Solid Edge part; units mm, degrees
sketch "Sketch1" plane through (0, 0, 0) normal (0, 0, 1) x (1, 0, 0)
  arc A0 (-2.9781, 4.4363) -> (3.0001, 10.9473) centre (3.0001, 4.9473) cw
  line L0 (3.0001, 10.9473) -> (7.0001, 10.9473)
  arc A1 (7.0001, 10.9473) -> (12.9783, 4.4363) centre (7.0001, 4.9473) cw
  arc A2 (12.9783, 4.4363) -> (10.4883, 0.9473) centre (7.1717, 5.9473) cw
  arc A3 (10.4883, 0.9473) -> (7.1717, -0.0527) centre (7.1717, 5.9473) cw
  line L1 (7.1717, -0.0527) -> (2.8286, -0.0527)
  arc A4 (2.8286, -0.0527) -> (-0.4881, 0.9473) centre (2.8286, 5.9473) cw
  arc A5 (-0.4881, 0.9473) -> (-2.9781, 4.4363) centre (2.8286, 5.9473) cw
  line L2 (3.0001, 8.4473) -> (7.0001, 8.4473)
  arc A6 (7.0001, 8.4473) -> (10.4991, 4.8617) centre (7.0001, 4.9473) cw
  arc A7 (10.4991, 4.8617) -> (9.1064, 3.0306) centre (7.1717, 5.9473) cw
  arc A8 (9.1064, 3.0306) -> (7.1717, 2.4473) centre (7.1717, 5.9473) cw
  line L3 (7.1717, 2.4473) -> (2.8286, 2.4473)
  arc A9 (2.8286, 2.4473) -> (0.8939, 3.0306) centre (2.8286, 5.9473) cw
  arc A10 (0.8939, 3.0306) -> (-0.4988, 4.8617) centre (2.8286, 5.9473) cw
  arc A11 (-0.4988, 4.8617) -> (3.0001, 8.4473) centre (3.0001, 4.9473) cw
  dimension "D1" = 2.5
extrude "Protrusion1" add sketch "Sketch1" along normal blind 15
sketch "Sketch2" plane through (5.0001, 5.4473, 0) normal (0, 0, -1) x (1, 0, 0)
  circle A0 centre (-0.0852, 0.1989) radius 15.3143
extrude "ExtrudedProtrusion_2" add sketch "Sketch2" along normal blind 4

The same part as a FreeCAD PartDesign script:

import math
import FreeCAD as App
import Part
import Sketcher

V = App.Vector

doc = App.newDocument("Part")
params = doc.addObject("Spreadsheet::Sheet", "Params")
for row, (alias, value) in enumerate([
    ("sketch1_radius", "6 mm"),
    ("sketch1_radius2", "3.5 mm"),
    ("sketch1_width", "4 mm"),
    ("pad1_length", "15 mm"),
    ("pad2_length", "4 mm"),
], start=1):
    params.set(f"A{row}", alias)
    params.set(f"B{row}", "=" + value)
    params.setAlias(f"B{row}", alias)

body = doc.addObject("PartDesign::Body", "Body")

sketch1 = doc.addObject("Sketcher::SketchObject", "Sketch")
body.addObject(sketch1)
sketch1.AttachmentSupport = (doc.XY_Plane, [""])
sketch1.MapMode = "FlatFace"
sketch1.addGeometry([
    Part.ArcOfCircle(Part.Circle(V(3, 4.9, 0), V(0, 0, 1), 6), math.radians(90), math.radians(185)),
    Part.ArcOfCircle(Part.Circle(V(2.8, 5.9, 0), V(0, 0, 1), 6), math.radians(-165), math.radians(-124)),
    Part.ArcOfCircle(Part.Circle(V(2.8, 5.9, 0), V(0, 0, 1), 6), math.radians(-124), math.radians(-90)),
    Part.LineSegment(V(2.8, -0.1, 0), V(7.2, -0.1, 0)),
    Part.ArcOfCircle(Part.Circle(V(7.2, 5.9, 0), V(0, 0, 1), 6), math.radians(-90), math.radians(-56)),
    Part.ArcOfCircle(Part.Circle(V(7.2, 5.9, 0), V(0, 0, 1), 6), math.radians(-56), math.radians(-15)),
    Part.ArcOfCircle(Part.Circle(V(7, 4.9, 0), V(0, 0, 1), 6), math.radians(-5), math.radians(90)),
    Part.LineSegment(V(7, 10.9, 0), V(3, 10.9, 0)),
    Part.ArcOfCircle(Part.Circle(V(3, 4.9, 0), V(0, 0, 1), 3.5), math.radians(90), math.radians(181)),
    Part.LineSegment(V(3, 8.4, 0), V(7, 8.4, 0)),
    Part.ArcOfCircle(Part.Circle(V(7, 4.9, 0), V(0, 0, 1), 3.5), math.radians(-1), math.radians(90)),
    Part.ArcOfCircle(Part.Circle(V(7.2, 5.9, 0), V(0, 0, 1), 3.5), math.radians(-56), math.radians(-18)),
    Part.ArcOfCircle(Part.Circle(V(7.2, 5.9, 0), V(0, 0, 1), 3.5), math.radians(-90), math.radians(-56)),
    Part.LineSegment(V(7.2, 2.4, 0), V(2.8, 2.4, 0)),
    Part.ArcOfCircle(Part.Circle(V(2.8, 5.9, 0), V(0, 0, 1), 3.5), math.radians(-124), math.radians(-90)),
    Part.ArcOfCircle(Part.Circle(V(2.8, 5.9, 0), V(0, 0, 1), 3.5), math.radians(-162), math.radians(-124)),
], False)
sketch1.addConstraint([
    Sketcher.Constraint("Coincident", 0, 2, 1, 1),
    Sketcher.Constraint("Tangent", 1, 2, 2, 1),
    Sketcher.Constraint("Tangent", 2, 2, 3, 1),
    Sketcher.Constraint("Tangent", 3, 2, 4, 1),
    Sketcher.Constraint("Tangent", 4, 2, 5, 1),
    Sketcher.Constraint("Coincident", 5, 2, 6, 1),
    Sketcher.Constraint("Tangent", 6, 2, 7, 1),
    Sketcher.Constraint("Tangent", 7, 2, 0, 1),
    Sketcher.Constraint("Tangent", 8, 1, 9, 1),
    Sketcher.Constraint("Tangent", 9, 2, 10, 2),
    Sketcher.Constraint("Coincident", 10, 1, 11, 2),
    Sketcher.Constraint("Tangent", 11, 1, 12, 2),
    Sketcher.Constraint("Tangent", 12, 1, 13, 1),
    Sketcher.Constraint("Tangent", 13, 2, 14, 2),
    Sketcher.Constraint("Tangent", 14, 1, 15, 2),
    Sketcher.Constraint("Coincident", 15, 1, 8, 2),
    Sketcher.Constraint("Horizontal", 3),
    Sketcher.Constraint("Horizontal", 7),
    Sketcher.Constraint("Horizontal", 9),
    Sketcher.Constraint("Horizontal", 13),
    Sketcher.Constraint("Coincident", 8, 3, 0, 3),
    Sketcher.Constraint("Coincident", 10, 3, 6, 3),
    Sketcher.Constraint("Coincident", 11, 3, 4, 3),
    Sketcher.Constraint("Coincident", 14, 3, 1, 3),
    Sketcher.Constraint("Equal", 0, 1),
    Sketcher.Constraint("Equal", 1, 2),
    Sketcher.Constraint("Equal", 2, 4),
    Sketcher.Constraint("Equal", 4, 5),
    Sketcher.Constraint("Equal", 5, 6),
    Sketcher.Constraint("Equal", 10, 11),
    Sketcher.Constraint("Equal", 11, 12),
    Sketcher.Constraint("Equal", 14, 15),
    Sketcher.Constraint("Horizontal", 1, 2, 4, 2),
    Sketcher.Constraint("Horizontal", 0, 2, 5, 2),
    Sketcher.Constraint("Horizontal", 11, 1, 14, 1),
    Sketcher.Constraint("Radius", 0, 6.0),
    Sketcher.Constraint("Radius", 8, 3.5),
    Sketcher.Constraint("DistanceX", 7, 2, 7, 1, 4.0),
    Sketcher.Constraint("DistanceX", -1, 1, 0, 3, 3.0),
    Sketcher.Constraint("DistanceY", 0, 3, 1, 3, 1.0),
    Sketcher.Constraint("DistanceY", 1, 2, 0, 3, 4.0),
    Sketcher.Constraint("DistanceX", 3, 1, 3, 2, 4.343),
    Sketcher.Constraint("DistanceX", -1, 1, 14, 1, 0.894),
    Sketcher.Constraint("DistanceY", -1, 1, 0, 3, 4.9473),
])
sketch1.setExpression("Constraints[35]", "Params.sketch1_radius")
sketch1.setExpression("Constraints[36]", "Params.sketch1_radius2")
sketch1.setExpression("Constraints[37]", "Params.sketch1_width")
pad1 = doc.addObject("PartDesign::Pad", "Pad")
body.addObject(pad1)
pad1.Profile = sketch1
pad1.setExpression("Length", "Params.pad1_length")

sketch2 = doc.addObject("Sketcher::SketchObject", "Sketch001")
body.addObject(sketch2)
sketch2.AttachmentSupport = (doc.XY_Plane, [""])
sketch2.MapMode = "FlatFace"
sketch2.addGeometry(Part.Circle(V(5, 5, 0), V(0, 0, 1), 15), False)
sketch2.addConstraint([
    Sketcher.Constraint("Diameter", 0, 30.6286),
    Sketcher.Constraint("DistanceX", -1, 1, 0, 3, 4.915),
    Sketcher.Constraint("DistanceY", -1, 1, 0, 3, 5.2484),
])
pad2 = doc.addObject("PartDesign::Pad", "Pad001")
body.addObject(pad2)
pad2.Profile = sketch2
pad2.setExpression("Length", "Params.pad2_length")
pad2.Reversed = True

doc.recompute()
